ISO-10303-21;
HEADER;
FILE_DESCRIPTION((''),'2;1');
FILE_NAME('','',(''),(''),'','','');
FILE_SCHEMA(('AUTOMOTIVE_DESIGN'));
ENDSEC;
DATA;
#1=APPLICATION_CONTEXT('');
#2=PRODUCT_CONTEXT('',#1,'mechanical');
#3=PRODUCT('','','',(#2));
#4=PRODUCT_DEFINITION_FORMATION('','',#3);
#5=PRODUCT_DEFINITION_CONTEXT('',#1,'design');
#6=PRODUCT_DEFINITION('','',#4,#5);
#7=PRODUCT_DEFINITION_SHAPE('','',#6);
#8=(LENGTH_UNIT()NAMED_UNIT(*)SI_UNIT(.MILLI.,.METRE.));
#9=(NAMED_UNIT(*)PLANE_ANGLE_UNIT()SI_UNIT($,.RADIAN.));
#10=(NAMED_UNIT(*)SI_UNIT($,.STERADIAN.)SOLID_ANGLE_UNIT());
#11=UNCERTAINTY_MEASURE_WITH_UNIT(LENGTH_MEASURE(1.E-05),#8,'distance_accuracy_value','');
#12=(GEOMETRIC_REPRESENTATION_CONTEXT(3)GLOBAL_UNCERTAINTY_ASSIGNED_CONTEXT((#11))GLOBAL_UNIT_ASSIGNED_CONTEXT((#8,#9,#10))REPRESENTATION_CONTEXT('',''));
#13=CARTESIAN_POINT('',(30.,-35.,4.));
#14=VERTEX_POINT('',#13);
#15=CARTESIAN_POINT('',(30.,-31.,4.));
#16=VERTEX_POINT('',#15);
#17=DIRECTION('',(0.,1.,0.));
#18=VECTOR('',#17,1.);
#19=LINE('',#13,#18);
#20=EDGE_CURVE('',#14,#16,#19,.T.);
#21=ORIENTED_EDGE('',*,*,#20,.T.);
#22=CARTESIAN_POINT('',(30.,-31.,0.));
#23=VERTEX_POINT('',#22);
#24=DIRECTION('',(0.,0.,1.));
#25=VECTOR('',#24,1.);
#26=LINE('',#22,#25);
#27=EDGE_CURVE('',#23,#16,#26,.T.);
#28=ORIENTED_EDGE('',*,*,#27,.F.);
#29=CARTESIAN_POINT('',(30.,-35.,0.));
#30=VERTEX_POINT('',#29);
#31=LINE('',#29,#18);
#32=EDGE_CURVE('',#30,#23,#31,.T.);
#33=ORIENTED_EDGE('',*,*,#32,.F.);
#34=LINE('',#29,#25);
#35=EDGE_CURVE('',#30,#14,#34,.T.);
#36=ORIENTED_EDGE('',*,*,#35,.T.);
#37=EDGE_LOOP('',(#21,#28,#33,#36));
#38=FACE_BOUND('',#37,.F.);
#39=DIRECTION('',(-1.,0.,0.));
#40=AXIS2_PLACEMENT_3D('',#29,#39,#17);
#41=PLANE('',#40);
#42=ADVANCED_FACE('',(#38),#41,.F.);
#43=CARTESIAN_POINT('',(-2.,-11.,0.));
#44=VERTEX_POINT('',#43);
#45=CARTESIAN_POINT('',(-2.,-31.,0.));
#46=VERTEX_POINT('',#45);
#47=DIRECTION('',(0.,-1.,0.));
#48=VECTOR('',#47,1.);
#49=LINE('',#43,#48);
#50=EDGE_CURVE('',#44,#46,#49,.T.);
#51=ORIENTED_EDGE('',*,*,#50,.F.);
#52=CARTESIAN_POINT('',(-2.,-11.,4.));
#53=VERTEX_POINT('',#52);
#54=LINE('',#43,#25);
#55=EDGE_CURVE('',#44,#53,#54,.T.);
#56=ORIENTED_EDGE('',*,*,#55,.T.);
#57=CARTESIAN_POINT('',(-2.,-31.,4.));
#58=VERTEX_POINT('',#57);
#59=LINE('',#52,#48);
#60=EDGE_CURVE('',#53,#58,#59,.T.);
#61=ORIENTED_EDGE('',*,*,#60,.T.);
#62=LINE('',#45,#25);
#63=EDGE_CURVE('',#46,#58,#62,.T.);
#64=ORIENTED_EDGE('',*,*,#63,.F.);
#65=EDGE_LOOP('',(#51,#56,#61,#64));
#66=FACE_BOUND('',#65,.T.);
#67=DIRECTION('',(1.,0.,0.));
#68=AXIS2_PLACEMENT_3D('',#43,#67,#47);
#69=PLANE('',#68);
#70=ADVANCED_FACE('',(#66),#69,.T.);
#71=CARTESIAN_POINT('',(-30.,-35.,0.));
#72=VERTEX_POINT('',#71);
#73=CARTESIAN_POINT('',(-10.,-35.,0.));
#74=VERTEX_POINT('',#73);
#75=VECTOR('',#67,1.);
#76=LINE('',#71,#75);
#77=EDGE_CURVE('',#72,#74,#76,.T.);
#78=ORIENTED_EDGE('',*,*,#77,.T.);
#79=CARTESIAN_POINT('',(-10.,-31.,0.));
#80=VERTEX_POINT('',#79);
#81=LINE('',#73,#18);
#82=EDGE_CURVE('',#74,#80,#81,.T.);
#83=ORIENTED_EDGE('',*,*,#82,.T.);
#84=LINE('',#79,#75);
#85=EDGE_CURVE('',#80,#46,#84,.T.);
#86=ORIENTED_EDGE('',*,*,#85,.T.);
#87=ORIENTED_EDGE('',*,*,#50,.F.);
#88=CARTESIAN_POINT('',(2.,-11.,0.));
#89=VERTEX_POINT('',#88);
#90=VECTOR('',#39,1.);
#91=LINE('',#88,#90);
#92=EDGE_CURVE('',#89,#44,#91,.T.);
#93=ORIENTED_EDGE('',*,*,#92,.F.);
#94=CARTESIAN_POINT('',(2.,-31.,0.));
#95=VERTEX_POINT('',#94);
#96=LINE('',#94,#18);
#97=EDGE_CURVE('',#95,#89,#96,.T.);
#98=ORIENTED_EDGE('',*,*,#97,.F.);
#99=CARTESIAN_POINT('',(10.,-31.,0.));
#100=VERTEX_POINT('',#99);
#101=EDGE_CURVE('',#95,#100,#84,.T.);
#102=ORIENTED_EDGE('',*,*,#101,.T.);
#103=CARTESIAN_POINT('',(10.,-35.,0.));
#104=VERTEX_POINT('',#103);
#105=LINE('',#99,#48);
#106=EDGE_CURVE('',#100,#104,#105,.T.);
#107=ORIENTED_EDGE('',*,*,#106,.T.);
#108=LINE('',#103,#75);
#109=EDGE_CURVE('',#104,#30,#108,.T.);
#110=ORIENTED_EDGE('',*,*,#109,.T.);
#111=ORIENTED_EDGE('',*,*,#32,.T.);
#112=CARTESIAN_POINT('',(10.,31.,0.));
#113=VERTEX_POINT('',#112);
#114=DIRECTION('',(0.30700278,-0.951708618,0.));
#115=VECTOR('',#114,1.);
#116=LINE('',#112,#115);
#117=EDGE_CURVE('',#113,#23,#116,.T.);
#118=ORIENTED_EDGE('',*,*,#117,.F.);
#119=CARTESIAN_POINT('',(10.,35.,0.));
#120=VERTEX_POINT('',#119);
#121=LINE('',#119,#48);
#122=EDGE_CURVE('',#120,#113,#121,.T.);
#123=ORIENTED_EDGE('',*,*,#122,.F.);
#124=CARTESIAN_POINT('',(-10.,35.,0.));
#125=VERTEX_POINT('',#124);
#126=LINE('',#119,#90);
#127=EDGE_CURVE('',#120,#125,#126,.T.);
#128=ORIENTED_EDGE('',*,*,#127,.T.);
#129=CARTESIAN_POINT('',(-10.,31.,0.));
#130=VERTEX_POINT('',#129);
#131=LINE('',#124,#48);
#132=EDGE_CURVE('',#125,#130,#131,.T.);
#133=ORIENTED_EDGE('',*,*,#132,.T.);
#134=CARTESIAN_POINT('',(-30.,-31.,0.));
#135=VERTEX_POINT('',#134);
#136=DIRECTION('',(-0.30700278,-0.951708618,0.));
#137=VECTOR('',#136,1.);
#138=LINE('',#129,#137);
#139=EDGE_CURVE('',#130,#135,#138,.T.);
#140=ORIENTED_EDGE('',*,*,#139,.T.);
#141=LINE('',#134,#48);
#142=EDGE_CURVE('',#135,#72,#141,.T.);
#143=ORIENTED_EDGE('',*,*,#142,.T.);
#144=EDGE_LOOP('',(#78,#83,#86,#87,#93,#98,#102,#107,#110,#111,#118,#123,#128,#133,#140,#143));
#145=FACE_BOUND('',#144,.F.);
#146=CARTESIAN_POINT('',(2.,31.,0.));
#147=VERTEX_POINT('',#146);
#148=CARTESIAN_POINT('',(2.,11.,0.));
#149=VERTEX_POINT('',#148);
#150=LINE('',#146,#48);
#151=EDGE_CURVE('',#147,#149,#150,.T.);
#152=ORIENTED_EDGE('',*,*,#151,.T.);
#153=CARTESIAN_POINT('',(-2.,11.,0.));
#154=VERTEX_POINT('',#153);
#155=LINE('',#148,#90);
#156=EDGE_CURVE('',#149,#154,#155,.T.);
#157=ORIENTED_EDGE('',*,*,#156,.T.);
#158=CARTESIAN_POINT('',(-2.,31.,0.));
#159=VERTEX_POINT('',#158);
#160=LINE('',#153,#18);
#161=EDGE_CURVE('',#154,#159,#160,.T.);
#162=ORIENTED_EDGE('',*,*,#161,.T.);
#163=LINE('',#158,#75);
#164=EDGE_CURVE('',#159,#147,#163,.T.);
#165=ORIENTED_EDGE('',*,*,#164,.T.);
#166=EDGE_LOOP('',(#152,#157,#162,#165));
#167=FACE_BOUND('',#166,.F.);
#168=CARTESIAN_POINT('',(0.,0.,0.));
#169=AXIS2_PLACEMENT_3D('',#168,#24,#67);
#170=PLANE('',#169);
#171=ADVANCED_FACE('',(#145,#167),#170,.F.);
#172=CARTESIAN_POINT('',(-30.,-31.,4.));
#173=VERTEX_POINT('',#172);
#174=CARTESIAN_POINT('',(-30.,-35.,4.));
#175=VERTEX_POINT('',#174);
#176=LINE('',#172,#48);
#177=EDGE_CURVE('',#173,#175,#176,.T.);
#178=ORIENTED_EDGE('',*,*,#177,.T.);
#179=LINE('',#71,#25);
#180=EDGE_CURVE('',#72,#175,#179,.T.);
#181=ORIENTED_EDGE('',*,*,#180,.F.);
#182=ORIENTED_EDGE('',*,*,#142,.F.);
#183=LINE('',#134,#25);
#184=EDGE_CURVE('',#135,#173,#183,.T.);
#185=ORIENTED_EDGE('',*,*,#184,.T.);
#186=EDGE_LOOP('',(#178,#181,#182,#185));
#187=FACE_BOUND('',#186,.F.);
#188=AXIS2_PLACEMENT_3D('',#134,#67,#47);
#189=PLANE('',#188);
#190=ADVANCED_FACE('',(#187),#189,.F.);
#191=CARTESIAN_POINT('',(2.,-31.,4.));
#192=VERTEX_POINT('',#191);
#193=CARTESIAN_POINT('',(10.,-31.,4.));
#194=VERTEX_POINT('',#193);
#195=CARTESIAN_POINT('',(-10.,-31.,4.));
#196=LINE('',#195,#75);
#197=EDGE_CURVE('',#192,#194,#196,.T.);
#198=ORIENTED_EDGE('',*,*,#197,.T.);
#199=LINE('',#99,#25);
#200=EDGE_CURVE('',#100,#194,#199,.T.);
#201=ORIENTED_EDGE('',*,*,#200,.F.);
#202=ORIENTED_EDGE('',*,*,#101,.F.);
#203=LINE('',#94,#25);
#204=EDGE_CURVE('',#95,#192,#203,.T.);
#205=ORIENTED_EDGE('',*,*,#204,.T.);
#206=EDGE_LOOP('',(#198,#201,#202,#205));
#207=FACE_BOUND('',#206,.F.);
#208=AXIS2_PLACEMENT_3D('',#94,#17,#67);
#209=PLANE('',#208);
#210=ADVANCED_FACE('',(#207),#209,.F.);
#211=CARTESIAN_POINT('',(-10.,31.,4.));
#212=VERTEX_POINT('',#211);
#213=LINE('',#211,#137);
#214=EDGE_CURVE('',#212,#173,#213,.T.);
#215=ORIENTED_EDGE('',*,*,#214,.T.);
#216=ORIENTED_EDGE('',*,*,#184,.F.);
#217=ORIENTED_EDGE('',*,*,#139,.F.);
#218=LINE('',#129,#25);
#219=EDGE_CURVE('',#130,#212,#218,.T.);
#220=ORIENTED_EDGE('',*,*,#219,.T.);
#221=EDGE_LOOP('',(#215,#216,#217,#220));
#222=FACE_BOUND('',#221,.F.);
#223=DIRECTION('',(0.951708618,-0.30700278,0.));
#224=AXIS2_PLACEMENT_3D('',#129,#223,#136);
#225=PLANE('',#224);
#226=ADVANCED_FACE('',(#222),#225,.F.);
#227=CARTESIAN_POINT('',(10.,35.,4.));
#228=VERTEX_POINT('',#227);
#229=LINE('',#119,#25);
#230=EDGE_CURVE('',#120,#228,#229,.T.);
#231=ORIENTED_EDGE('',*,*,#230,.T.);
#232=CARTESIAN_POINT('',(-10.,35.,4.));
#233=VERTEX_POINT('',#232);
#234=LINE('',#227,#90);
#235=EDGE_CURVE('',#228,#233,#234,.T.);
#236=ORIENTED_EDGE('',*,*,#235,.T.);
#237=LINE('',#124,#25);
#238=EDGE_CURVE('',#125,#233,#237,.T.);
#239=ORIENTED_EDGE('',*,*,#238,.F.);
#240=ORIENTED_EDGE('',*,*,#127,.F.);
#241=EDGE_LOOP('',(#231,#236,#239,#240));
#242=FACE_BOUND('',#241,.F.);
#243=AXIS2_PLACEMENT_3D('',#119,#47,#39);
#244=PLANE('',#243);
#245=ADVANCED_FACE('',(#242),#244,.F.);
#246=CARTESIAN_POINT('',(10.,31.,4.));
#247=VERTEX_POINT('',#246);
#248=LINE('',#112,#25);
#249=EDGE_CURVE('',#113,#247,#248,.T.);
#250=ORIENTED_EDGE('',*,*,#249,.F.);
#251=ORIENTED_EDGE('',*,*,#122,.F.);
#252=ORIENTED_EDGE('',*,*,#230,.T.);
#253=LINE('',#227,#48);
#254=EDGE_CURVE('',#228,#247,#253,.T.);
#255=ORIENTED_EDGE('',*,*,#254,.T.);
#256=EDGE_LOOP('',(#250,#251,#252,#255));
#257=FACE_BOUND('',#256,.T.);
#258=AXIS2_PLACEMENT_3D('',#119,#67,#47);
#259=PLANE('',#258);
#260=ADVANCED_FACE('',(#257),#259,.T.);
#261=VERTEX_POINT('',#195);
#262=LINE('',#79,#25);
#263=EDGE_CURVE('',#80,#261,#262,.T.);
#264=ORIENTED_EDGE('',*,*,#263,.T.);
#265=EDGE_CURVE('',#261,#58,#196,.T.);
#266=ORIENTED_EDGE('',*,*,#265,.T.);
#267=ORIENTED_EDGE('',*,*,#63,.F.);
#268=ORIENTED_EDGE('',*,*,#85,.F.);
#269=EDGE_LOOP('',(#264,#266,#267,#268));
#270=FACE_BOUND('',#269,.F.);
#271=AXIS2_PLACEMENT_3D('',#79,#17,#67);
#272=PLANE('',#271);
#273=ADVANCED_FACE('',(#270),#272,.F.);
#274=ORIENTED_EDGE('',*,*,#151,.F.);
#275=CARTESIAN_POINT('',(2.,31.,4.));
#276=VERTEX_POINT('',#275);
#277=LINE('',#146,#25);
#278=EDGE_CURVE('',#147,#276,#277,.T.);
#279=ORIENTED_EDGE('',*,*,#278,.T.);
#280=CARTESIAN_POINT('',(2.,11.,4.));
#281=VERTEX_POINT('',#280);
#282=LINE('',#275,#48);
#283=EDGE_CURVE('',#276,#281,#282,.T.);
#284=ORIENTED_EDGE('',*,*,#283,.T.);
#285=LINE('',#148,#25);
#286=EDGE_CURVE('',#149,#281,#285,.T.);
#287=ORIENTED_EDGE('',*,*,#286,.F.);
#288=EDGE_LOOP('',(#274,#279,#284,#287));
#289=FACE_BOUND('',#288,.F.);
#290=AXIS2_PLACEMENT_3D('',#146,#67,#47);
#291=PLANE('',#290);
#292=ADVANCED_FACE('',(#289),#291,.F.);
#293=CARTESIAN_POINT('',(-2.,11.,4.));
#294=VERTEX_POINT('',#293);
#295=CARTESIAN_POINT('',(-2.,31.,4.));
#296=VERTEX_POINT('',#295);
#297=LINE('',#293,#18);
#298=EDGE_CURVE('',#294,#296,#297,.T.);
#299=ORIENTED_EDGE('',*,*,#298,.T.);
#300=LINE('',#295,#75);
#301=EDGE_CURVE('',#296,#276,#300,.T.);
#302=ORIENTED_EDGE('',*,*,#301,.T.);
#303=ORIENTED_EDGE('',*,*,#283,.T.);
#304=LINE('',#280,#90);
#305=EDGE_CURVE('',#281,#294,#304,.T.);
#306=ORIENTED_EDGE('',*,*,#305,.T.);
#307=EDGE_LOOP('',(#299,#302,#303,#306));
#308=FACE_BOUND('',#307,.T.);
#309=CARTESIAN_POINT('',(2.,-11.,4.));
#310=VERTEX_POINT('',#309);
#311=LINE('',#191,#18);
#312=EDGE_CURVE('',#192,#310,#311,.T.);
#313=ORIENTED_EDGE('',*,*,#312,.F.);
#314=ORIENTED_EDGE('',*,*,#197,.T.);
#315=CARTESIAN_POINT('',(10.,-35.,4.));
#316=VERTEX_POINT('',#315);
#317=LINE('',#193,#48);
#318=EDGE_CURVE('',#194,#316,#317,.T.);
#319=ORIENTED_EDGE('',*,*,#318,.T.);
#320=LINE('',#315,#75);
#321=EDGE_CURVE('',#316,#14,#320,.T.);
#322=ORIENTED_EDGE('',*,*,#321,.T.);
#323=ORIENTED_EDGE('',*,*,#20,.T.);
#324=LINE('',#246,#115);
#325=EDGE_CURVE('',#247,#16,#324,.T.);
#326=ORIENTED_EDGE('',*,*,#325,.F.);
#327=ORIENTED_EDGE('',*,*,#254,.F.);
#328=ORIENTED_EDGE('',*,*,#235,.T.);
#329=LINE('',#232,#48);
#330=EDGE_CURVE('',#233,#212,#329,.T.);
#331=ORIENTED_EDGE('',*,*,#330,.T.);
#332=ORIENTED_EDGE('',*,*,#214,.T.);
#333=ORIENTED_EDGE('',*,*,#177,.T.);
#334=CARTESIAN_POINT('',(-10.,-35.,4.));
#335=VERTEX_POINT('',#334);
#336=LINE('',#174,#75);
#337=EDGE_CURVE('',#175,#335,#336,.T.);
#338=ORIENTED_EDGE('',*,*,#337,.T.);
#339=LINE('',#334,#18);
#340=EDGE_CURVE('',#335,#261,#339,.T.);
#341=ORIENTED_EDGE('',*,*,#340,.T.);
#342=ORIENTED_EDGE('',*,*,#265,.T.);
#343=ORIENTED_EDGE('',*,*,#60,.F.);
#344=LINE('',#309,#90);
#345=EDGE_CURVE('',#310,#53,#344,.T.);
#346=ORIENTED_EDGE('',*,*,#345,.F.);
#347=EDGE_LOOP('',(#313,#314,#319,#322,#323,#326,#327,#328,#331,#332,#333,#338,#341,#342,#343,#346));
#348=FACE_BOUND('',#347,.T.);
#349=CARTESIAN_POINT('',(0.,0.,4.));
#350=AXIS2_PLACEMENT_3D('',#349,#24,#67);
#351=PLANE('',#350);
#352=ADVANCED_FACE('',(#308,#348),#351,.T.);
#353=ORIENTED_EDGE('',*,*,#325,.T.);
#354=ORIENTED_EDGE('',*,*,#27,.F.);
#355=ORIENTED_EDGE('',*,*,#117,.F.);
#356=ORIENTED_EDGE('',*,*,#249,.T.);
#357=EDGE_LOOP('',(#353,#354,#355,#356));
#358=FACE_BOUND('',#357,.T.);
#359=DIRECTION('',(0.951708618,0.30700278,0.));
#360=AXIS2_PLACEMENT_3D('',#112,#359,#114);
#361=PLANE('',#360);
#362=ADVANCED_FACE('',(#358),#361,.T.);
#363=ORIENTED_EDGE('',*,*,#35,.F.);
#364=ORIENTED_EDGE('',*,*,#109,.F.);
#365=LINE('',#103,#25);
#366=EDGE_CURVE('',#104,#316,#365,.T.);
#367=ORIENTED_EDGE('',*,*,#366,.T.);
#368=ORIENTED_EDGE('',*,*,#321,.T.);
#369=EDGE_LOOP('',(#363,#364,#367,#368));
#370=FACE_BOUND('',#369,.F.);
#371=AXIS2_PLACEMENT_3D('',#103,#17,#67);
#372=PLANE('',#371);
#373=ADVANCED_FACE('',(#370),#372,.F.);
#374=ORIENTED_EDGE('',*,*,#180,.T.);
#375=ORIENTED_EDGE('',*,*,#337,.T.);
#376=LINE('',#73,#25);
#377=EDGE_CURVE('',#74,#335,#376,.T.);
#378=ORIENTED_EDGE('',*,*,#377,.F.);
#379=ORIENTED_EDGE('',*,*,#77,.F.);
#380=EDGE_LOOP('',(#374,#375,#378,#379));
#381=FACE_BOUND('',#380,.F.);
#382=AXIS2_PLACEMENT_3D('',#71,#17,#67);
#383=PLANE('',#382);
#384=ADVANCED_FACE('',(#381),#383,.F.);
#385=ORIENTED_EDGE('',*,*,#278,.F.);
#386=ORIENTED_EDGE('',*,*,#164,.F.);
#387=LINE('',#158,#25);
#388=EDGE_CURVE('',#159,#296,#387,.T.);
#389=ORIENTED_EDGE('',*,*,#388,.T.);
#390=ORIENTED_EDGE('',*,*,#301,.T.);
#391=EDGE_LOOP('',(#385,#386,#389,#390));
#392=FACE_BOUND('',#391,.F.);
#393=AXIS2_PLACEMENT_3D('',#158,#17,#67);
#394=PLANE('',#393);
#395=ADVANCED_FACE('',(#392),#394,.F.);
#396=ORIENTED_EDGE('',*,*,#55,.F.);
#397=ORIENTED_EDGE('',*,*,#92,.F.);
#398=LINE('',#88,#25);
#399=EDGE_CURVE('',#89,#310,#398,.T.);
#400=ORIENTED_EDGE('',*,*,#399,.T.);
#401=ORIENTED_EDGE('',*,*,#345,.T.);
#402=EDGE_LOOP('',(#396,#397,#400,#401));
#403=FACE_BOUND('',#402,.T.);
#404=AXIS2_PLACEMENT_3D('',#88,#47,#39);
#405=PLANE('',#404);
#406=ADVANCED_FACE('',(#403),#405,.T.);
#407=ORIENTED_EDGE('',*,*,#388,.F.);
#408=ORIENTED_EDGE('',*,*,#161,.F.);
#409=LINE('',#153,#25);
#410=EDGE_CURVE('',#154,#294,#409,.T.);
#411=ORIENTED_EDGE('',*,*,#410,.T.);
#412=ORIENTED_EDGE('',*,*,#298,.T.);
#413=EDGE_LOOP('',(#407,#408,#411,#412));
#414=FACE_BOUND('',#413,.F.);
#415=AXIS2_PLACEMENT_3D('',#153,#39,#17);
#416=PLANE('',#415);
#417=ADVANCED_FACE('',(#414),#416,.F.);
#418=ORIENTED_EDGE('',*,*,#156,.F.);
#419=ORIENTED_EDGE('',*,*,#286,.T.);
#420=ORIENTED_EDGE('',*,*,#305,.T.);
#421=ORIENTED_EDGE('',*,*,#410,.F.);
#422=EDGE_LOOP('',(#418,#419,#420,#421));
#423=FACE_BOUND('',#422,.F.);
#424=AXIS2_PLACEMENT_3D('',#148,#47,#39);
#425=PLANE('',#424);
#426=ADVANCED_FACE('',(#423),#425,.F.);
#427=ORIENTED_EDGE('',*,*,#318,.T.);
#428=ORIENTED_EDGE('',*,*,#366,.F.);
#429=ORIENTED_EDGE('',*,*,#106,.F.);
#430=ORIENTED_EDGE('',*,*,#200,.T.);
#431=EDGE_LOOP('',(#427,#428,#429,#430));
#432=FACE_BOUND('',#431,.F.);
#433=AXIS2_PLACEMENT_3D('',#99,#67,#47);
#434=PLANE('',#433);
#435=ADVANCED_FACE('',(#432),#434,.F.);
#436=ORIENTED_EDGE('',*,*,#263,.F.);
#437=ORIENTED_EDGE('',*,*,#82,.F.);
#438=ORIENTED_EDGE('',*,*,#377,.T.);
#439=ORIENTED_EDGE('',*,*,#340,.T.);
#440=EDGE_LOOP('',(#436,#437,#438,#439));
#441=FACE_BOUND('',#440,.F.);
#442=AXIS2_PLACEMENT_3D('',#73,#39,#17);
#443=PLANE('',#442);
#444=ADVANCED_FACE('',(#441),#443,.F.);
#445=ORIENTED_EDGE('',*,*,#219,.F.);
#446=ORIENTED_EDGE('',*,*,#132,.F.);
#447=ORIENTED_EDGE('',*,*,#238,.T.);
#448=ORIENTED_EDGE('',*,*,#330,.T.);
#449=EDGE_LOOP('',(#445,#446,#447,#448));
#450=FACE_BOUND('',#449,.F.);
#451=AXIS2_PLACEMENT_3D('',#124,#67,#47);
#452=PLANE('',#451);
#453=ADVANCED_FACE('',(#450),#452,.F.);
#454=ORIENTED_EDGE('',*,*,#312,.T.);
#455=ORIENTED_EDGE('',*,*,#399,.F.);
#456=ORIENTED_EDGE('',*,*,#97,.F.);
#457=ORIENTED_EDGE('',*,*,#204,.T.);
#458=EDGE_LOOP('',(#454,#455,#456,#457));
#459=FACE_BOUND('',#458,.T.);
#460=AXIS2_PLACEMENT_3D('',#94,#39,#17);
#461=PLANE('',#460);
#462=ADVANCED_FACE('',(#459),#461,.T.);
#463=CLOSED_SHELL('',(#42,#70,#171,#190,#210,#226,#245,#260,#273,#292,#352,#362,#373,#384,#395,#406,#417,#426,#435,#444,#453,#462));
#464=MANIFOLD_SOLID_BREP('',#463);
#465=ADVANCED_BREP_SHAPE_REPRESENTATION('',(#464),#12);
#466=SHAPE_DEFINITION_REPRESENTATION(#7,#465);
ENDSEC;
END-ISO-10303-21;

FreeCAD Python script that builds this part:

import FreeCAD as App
import Part
import Sketcher


def add_polygon(sketch, points):
    """Adds a closed chain of lines whose ends are joined by coincident constraints."""
    first, n = sketch.GeometryCount, len(points)
    for a, b in zip(points, points[1:] + points[:1]):
        sketch.addGeometry(Part.LineSegment(App.Vector(*a, 0), App.Vector(*b, 0)), False)
    for i in range(n):
        sketch.addConstraint(Sketcher.Constraint("Coincident", first + i, 2, first + (i + 1) % n, 1))

doc = App.newDocument("Part")
params = doc.addObject("Spreadsheet::Sheet", "Params")
for row, (alias, value) in enumerate([
    ("sketch1_width", "20 mm"),
    ("sketch1_width2", "4 mm"),
    ("pad1_length", "4 mm"),
], start=1):
    params.set(f"A{row}", alias)
    params.set(f"B{row}", "=" + value)
    params.setAlias(f"B{row}", alias)

body = doc.addObject("PartDesign::Body", "Body")

# Sketch on XY plane
sketch1 = doc.addObject("Sketcher::SketchObject", "Sketch")
body.addObject(sketch1)
sketch1.AttachmentSupport = (doc.XY_Plane, [""])
sketch1.MapMode = "FlatFace"
add_polygon(sketch1, [(-30, -31), (-30, -35), (-10, -35), (-10, -31), (-2, -31), (-2, -11), (2, -11), (2, -31), (10, -31), (10, -35), (30, -35), (30, -31), (10, 31), (10, 35), (-10, 35), (-10, 31)])  # lines 0-15
add_polygon(sketch1, [(-2, 11), (-2, 31), (2, 31), (2, 11)])  # lines 16-19
sketch1.addConstraint([
    Sketcher.Constraint("Vertical", 0),
    Sketcher.Constraint("Horizontal", 1),
    Sketcher.Constraint("Vertical", 2),
    Sketcher.Constraint("Horizontal", 3),
    Sketcher.Constraint("Vertical", 4),
    Sketcher.Constraint("Horizontal", 5),
    Sketcher.Constraint("Vertical", 6),
    Sketcher.Constraint("Horizontal", 7),
    Sketcher.Constraint("Vertical", 8),
    Sketcher.Constraint("Horizontal", 9),
    Sketcher.Constraint("Vertical", 10),
    Sketcher.Constraint("Vertical", 12),
    Sketcher.Constraint("Horizontal", 13),
    Sketcher.Constraint("Vertical", 14),
    Sketcher.Constraint("Vertical", 16),
    Sketcher.Constraint("Horizontal", 17),
    Sketcher.Constraint("Vertical", 18),
    Sketcher.Constraint("Horizontal", 19),
    Sketcher.Constraint("Symmetric", 2, 2, 11, 2, -1, 1),
    Sketcher.Constraint("Symmetric", 8, 2, 13, 2, -1, 1),
    Sketcher.Constraint("Symmetric", 6, 2, 16, 2, -1, 1),
    Sketcher.Constraint("Symmetric", 3, 2, 17, 2, -1, 1),
    Sketcher.Constraint("Symmetric", 1, 2, 8, 2, -2),
    Sketcher.Constraint("Symmetric", 10, 2, 15, 2, -2),
    Sketcher.Constraint("Symmetric", 5, 2, 18, 2, -1),
    Sketcher.Constraint("Horizontal", 7, 2, 10, 2),
    Sketcher.Constraint("Horizontal", 11, 2, 14, 2),
    Sketcher.Constraint("Equal", 9, 13),
    Sketcher.Constraint("Equal", 19, 0),
    Sketcher.Constraint("Equal", 13, 4),
    Sketcher.Constraint("DistanceX", 1, 1, 1, 2, 20.0),
    Sketcher.Constraint("DistanceX", 5, 1, 5, 2, 4.0),
    Sketcher.Constraint("DistanceY", 7, 2, 11, 2, 62.0),
])
sketch1.setExpression("Constraints[50]", "Params.sketch1_width")
sketch1.setExpression("Constraints[51]", "Params.sketch1_width2")
pad1 = doc.addObject("PartDesign::Pad", "Pad")
body.addObject(pad1)
pad1.Profile = sketch1
pad1.setExpression("Length", "Params.pad1_length")

doc.recompute()
